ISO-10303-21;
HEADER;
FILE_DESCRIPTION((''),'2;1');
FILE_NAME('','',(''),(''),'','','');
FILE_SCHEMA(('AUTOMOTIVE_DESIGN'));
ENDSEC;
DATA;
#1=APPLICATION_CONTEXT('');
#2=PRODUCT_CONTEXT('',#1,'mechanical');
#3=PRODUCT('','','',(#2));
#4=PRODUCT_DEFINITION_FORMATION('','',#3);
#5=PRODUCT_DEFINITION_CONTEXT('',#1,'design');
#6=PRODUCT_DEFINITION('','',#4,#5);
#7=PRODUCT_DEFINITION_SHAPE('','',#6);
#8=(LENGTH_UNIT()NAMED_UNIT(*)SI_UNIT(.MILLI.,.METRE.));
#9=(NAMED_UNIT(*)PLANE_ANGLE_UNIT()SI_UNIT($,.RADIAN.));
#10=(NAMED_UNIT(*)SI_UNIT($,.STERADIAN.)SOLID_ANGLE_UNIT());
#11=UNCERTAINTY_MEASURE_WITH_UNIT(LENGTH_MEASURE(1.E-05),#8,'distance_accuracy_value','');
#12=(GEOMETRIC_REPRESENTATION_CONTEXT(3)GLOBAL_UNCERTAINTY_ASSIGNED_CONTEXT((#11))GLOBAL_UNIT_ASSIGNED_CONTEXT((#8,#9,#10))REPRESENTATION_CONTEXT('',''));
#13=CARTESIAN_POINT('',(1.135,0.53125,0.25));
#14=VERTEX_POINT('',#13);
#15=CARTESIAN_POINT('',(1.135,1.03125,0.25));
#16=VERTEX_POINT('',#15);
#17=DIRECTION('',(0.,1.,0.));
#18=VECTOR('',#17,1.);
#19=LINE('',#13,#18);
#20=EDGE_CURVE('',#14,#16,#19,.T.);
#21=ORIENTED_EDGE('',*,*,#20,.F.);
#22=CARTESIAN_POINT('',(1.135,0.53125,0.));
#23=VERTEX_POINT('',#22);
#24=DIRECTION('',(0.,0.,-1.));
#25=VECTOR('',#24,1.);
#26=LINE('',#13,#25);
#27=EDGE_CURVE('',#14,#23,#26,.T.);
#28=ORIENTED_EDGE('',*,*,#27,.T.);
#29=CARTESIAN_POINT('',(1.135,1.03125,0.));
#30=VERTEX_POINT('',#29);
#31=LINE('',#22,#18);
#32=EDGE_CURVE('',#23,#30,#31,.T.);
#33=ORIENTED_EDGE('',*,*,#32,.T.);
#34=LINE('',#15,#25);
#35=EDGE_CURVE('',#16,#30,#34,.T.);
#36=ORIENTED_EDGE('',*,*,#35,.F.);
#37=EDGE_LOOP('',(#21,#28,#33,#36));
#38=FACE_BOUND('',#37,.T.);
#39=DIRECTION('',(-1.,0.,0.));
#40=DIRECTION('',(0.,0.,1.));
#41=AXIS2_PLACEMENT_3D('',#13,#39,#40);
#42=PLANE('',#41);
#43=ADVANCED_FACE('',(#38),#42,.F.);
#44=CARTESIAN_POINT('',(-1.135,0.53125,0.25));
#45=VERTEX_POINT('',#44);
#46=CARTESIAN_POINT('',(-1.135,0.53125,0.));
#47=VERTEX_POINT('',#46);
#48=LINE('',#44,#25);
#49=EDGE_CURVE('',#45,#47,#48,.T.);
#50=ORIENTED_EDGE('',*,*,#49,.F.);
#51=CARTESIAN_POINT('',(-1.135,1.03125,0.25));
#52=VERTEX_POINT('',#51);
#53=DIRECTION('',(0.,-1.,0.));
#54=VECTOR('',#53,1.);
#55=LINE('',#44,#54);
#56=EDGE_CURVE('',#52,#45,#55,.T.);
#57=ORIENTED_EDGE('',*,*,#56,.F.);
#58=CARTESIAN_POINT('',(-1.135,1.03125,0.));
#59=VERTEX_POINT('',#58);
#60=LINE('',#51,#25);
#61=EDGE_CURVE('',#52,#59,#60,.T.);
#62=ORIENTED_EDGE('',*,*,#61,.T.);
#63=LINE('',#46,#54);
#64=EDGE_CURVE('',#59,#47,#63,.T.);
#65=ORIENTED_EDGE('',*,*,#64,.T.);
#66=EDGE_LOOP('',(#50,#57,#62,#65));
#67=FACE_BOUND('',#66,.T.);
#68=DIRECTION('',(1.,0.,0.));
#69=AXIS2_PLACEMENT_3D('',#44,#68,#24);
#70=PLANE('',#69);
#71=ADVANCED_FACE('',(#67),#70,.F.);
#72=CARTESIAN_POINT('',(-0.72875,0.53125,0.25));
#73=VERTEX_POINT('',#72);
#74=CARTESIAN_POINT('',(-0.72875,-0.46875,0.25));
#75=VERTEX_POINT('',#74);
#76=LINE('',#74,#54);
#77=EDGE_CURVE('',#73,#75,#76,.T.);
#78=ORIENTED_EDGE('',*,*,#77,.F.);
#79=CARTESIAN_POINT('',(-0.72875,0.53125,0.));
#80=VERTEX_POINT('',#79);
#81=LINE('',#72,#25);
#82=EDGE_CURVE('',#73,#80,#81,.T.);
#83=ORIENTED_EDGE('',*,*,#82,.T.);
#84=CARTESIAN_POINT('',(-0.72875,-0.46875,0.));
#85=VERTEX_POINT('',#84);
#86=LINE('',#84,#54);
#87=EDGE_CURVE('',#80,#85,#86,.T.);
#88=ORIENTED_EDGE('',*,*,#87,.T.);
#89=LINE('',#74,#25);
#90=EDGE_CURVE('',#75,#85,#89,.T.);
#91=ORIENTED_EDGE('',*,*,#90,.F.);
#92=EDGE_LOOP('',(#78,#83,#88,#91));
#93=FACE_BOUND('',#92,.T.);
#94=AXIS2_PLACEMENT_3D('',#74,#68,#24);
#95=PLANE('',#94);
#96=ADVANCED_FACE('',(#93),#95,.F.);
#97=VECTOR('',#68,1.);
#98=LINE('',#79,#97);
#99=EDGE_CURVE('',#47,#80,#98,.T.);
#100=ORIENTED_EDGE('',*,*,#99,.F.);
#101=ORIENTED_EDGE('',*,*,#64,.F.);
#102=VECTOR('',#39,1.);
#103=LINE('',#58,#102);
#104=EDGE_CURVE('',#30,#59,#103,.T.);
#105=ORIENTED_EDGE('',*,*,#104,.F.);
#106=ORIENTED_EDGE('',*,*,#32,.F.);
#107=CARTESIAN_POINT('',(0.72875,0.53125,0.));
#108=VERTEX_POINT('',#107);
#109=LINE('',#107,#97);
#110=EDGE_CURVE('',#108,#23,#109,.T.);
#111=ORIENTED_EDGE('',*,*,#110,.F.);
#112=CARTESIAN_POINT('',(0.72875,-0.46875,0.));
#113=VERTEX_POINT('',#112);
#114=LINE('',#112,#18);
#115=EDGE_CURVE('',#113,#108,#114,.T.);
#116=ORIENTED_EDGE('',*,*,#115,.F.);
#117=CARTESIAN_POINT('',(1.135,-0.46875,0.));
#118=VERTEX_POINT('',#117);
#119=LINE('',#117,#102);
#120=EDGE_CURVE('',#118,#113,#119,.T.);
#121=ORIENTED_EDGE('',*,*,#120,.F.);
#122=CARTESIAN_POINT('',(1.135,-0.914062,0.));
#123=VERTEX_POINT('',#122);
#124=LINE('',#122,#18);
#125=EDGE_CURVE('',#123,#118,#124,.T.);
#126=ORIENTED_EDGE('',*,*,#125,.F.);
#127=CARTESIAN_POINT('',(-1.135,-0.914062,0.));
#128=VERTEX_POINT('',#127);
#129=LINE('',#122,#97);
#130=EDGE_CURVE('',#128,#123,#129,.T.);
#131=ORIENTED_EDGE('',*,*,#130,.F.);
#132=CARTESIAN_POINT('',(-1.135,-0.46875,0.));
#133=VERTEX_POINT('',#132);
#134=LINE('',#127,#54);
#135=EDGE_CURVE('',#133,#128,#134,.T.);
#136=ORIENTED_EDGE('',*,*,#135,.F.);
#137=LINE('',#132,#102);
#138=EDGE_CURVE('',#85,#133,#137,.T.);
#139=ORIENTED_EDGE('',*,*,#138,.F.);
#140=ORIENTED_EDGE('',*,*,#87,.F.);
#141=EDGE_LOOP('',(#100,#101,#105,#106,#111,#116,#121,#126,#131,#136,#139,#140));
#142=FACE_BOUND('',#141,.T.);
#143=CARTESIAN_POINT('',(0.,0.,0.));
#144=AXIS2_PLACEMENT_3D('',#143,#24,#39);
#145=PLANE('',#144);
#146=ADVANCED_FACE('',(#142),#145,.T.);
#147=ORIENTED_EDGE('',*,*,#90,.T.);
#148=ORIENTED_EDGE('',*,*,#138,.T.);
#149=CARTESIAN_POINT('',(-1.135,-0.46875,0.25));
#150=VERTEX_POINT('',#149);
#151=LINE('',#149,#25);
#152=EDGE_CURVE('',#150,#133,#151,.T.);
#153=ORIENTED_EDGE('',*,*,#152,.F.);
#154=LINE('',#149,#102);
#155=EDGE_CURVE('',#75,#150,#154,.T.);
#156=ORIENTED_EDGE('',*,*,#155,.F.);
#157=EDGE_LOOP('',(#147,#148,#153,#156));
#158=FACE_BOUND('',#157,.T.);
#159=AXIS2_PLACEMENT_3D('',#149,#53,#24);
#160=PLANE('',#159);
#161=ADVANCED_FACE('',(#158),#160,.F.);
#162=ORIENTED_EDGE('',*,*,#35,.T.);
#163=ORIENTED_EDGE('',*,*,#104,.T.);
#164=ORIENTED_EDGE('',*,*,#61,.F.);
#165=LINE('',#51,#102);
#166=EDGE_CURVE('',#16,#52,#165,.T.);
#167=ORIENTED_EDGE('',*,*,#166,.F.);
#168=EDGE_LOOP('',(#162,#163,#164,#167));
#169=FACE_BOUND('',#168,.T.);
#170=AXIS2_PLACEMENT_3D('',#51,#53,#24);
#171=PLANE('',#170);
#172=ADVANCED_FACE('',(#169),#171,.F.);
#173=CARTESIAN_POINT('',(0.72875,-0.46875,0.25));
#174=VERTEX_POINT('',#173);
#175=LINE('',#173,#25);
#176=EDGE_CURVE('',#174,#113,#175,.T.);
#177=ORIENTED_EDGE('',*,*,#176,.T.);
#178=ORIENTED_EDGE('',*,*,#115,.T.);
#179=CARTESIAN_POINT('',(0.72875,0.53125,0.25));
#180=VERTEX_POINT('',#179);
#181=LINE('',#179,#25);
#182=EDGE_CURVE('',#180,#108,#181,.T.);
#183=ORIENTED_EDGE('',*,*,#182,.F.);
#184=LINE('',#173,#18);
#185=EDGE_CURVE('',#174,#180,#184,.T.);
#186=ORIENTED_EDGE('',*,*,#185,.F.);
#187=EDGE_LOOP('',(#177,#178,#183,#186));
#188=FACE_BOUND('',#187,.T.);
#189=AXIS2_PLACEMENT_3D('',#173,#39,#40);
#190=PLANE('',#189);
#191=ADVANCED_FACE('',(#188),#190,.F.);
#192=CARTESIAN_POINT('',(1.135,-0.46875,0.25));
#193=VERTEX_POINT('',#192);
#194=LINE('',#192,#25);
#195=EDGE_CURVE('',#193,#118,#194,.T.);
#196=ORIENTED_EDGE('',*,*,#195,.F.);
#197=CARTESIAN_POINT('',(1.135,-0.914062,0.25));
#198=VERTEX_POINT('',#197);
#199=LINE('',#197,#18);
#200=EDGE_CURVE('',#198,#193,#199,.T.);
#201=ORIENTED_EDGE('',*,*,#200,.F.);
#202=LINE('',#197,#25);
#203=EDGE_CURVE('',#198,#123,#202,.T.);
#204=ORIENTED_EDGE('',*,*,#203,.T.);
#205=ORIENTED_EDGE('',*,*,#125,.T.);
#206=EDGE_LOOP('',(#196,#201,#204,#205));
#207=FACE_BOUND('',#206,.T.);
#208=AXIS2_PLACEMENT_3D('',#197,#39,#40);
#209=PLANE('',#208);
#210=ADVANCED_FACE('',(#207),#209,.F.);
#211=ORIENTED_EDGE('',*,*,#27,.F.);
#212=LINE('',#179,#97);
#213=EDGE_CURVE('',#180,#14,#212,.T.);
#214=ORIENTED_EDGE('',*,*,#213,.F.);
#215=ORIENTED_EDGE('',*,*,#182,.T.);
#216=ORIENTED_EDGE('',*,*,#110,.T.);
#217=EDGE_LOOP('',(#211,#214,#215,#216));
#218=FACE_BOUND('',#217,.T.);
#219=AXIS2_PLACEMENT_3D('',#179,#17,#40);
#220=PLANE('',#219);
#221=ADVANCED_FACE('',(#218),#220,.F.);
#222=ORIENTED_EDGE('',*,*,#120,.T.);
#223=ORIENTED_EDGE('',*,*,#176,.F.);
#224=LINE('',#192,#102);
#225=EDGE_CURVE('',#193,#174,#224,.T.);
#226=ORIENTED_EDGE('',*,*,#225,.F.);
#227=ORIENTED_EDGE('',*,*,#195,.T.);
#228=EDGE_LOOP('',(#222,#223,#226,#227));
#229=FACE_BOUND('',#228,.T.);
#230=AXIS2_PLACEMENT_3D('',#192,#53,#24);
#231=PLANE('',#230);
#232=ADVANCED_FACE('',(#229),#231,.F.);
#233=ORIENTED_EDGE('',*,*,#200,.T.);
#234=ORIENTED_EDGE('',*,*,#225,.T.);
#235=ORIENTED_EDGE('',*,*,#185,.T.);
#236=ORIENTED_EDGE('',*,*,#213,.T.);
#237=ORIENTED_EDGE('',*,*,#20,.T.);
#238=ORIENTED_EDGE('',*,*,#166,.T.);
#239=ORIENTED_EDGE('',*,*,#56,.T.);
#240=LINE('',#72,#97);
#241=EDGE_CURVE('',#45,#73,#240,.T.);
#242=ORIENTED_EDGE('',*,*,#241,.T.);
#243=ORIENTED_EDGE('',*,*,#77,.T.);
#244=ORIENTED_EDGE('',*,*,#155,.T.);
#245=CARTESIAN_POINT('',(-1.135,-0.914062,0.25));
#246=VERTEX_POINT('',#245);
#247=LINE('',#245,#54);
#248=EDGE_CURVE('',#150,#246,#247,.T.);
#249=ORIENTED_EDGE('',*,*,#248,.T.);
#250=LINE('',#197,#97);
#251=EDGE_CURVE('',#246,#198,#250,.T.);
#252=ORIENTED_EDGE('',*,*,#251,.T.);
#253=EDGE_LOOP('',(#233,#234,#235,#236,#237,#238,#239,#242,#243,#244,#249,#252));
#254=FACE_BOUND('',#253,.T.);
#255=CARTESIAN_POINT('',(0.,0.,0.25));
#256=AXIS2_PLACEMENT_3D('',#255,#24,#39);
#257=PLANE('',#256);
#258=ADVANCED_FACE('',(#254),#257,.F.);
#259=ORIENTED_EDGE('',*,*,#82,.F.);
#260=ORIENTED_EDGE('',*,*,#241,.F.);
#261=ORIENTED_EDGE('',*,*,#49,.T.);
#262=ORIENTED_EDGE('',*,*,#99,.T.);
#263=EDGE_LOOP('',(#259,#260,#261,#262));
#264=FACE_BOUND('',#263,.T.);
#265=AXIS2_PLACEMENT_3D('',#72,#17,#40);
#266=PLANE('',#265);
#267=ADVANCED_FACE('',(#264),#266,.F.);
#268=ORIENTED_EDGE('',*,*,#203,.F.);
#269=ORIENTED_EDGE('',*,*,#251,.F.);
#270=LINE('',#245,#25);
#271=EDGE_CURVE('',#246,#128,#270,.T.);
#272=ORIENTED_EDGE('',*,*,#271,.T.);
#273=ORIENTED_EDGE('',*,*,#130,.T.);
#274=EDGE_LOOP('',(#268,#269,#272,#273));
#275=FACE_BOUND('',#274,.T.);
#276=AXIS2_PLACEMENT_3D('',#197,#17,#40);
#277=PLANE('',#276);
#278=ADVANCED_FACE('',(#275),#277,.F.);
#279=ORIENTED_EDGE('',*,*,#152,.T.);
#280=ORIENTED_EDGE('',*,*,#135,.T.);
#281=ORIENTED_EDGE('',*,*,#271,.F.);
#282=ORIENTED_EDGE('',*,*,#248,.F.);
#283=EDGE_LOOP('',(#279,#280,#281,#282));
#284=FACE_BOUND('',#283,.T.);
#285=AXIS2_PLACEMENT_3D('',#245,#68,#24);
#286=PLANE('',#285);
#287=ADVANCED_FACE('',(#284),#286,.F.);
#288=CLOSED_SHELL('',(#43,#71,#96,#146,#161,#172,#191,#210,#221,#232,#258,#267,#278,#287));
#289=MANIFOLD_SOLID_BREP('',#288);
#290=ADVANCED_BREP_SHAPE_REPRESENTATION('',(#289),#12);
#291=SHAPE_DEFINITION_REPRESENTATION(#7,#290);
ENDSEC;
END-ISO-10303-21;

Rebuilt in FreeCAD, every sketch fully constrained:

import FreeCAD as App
import Part
import Sketcher
from FreeCAD import Vector
Q = App.Units.Quantity

doc = App.newDocument("Part")
body = doc.addObject("PartDesign::Body", "Body")

# Sketch on XY plane
sketch1 = doc.addObject("Sketcher::SketchObject", "Sketch")
body.addObject(sketch1)
sketch1.AttachmentSupport = (doc.XY_Plane, [""])
sketch1.MapMode = "FlatFace"
sketch1.addGeometry([
    Part.LineSegment(Vector(-1.14, -0.91, 0), Vector(1.14, -0.91, 0)),  # 0
    Part.LineSegment(Vector(1.14, -0.91, 0), Vector(1.14, -0.47, 0)),  # 1
    Part.LineSegment(Vector(1.14, -0.47, 0), Vector(0.73, -0.47, 0)),  # 2
    Part.LineSegment(Vector(0.73, -0.47, 0), Vector(0.73, 0.53, 0)),  # 3
    Part.LineSegment(Vector(0.73, 0.53, 0), Vector(1.14, 0.53, 0)),  # 4
    Part.LineSegment(Vector(1.14, 0.53, 0), Vector(1.14, 1.03, 0)),  # 5
    Part.LineSegment(Vector(1.14, 1.03, 0), Vector(-1.14, 1.03, 0)),  # 6
    Part.LineSegment(Vector(-1.14, 1.03, 0), Vector(-1.14, 0.53, 0)),  # 7
    Part.LineSegment(Vector(-1.14, 0.53, 0), Vector(-0.73, 0.53, 0)),  # 8
    Part.LineSegment(Vector(-0.73, 0.53, 0), Vector(-0.73, -0.47, 0)),  # 9
    Part.LineSegment(Vector(-0.73, -0.47, 0), Vector(-1.14, -0.47, 0)),  # 10
    Part.LineSegment(Vector(-1.14, -0.47, 0), Vector(-1.14, -0.91, 0)),  # 11
], False)
sketch1.addConstraint([
    Sketcher.Constraint("Coincident", 0, 2, 1, 1),
    Sketcher.Constraint("Coincident", 1, 2, 2, 1),
    Sketcher.Constraint("Coincident", 2, 2, 3, 1),
    Sketcher.Constraint("Coincident", 3, 2, 4, 1),
    Sketcher.Constraint("Coincident", 4, 2, 5, 1),
    Sketcher.Constraint("Coincident", 5, 2, 6, 1),
    Sketcher.Constraint("Coincident", 6, 2, 7, 1),
    Sketcher.Constraint("Coincident", 7, 2, 8, 1),
    Sketcher.Constraint("Coincident", 8, 2, 9, 1),
    Sketcher.Constraint("Coincident", 9, 2, 10, 1),
    Sketcher.Constraint("Coincident", 10, 2, 11, 1),
    Sketcher.Constraint("Coincident", 11, 2, 0, 1),
    Sketcher.Constraint("Horizontal", 0),
    Sketcher.Constraint("Vertical", 1),
    Sketcher.Constraint("Horizontal", 2),
    Sketcher.Constraint("Vertical", 3),
    Sketcher.Constraint("Horizontal", 4),
    Sketcher.Constraint("Vertical", 5),
    Sketcher.Constraint("Horizontal", 6),
    Sketcher.Constraint("Vertical", 7),
    Sketcher.Constraint("Horizontal", 8),
    Sketcher.Constraint("Vertical", 9),
    Sketcher.Constraint("Horizontal", 10),
    Sketcher.Constraint("Vertical", 11),
    Sketcher.Constraint("Symmetric", 4, 2, 7, 2, -2),
    Sketcher.Constraint("Symmetric", 2, 2, 9, 2, -2),
    Sketcher.Constraint("Vertical", 1, 2, 4, 2),
    Sketcher.Constraint("Vertical", 7, 2, 10, 2),
    Sketcher.Constraint("DistanceY", 3, 1, 3, 2, Q("1 mm")),
    Sketcher.Constraint("DistanceY", 5, 1, 5, 2, Q("0.5 mm")),
    Sketcher.Constraint("DistanceX", 0, 1, 0, 2, Q("2.27 mm")),
    Sketcher.Constraint("DistanceX", 2, 2, 2, 1, Q("0.40625 mm")),
    Sketcher.Constraint("DistanceY", 1, 1, 1, 2, Q("0.445312 mm")),
    Sketcher.Constraint("DistanceY", 1, 2, -1, 1, Q("0.46875 mm")),
])
pad1 = doc.addObject("PartDesign::Pad", "Pad")
body.addObject(pad1)
pad1.Profile = sketch1
pad1.Length = 0.25

doc.recompute()
